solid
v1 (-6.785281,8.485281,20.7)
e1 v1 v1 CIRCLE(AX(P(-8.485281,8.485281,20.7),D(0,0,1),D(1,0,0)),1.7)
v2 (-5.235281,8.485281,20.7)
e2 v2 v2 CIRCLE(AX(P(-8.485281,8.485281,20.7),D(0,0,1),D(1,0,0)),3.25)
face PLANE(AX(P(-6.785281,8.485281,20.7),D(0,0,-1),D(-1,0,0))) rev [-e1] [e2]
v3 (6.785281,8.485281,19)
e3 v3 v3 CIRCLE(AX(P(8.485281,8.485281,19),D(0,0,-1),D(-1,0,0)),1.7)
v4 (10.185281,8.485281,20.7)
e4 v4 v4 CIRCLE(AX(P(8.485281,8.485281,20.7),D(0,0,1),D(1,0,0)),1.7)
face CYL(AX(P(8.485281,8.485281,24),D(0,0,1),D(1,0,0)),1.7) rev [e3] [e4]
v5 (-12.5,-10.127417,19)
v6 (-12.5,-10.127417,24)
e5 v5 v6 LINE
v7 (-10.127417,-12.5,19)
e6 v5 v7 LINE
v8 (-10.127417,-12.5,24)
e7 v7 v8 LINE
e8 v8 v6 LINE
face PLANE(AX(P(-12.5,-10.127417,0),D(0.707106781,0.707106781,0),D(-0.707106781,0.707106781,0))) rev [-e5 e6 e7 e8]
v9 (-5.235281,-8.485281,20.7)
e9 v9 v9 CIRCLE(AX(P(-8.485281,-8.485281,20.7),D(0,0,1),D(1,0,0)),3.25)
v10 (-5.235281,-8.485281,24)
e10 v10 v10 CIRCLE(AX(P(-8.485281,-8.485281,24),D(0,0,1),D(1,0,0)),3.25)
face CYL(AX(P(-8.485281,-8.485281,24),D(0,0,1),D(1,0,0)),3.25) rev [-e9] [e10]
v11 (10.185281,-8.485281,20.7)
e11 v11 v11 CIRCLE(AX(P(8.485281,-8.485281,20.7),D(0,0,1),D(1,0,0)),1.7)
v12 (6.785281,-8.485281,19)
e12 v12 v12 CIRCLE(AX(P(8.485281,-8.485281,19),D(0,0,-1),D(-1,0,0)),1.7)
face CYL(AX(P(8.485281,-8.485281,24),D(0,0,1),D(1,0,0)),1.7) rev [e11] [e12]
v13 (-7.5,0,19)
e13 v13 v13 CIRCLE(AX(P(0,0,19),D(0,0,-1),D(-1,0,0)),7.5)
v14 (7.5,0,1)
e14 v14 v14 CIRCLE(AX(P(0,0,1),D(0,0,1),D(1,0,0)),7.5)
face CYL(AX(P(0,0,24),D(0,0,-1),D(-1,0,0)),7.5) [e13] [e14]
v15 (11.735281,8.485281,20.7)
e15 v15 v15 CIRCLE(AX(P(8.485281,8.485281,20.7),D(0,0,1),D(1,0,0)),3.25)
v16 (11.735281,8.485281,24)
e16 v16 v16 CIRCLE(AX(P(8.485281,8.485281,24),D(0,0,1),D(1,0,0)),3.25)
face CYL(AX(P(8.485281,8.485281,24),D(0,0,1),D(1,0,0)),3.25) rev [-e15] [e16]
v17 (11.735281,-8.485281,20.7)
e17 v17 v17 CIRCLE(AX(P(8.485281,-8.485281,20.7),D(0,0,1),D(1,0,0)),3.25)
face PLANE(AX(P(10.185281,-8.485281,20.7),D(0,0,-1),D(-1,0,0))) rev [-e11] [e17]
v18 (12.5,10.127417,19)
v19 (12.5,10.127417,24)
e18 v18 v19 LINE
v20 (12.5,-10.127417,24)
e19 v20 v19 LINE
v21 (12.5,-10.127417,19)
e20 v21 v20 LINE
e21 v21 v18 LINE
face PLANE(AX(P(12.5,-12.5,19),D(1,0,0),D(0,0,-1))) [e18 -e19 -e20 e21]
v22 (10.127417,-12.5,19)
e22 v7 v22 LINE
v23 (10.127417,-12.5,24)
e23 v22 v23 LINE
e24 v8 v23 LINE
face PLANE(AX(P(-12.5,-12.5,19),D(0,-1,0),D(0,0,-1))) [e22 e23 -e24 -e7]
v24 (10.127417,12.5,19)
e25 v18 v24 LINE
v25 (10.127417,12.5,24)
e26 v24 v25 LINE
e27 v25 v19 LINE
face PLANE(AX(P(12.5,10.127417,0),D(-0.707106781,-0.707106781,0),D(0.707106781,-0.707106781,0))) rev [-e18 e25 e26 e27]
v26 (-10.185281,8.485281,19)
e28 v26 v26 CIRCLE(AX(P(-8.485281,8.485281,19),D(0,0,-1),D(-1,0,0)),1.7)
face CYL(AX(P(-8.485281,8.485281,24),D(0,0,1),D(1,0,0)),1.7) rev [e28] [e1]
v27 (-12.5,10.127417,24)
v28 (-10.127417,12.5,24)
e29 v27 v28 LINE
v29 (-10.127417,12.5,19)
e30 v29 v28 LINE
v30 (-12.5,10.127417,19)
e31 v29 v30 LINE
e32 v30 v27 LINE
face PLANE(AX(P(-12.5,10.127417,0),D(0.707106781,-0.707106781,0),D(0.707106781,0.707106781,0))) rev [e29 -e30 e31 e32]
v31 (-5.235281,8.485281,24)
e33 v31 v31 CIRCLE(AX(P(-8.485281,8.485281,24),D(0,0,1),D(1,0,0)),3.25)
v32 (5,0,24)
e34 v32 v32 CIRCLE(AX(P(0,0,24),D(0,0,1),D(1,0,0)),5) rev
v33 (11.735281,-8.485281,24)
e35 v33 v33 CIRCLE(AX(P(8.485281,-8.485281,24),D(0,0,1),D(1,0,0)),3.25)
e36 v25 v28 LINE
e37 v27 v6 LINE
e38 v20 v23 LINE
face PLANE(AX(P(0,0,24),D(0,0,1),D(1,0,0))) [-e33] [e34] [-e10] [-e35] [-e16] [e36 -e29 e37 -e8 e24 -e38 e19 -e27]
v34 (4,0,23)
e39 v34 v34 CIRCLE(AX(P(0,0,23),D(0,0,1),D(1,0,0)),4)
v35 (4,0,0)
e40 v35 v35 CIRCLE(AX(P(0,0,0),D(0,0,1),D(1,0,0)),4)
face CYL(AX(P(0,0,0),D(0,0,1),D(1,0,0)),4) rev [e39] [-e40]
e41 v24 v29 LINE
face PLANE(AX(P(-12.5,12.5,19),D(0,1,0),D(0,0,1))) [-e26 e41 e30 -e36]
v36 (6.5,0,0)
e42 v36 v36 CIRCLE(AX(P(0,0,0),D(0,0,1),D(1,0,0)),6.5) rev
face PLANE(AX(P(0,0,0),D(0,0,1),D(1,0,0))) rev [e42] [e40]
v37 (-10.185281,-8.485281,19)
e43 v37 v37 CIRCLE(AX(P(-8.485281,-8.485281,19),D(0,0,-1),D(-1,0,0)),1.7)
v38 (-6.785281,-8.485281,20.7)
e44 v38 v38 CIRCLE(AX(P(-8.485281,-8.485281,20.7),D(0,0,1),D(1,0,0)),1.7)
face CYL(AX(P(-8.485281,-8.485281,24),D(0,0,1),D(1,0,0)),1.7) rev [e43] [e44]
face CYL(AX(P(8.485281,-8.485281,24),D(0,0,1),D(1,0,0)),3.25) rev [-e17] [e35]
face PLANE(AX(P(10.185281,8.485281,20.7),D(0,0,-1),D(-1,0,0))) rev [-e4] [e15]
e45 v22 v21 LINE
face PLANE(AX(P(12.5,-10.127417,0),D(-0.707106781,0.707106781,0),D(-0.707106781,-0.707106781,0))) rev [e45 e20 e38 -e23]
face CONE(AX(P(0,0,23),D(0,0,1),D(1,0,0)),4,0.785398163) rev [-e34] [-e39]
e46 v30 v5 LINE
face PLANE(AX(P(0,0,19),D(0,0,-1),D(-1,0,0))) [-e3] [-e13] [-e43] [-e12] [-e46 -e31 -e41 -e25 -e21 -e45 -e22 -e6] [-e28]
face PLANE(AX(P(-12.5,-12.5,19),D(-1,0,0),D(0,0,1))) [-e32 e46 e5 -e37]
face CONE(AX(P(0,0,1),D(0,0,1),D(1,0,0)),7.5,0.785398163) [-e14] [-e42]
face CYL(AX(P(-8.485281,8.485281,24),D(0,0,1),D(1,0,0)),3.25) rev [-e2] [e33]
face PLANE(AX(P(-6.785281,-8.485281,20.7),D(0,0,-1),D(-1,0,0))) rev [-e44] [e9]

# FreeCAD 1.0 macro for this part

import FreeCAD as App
import Part
import Sketcher

V = App.Vector
Q = App.Units.Quantity


def edges_at(feature, points):
    """Names of the edges that pass closest to the given points."""
    edges = feature.Shape.Edges
    near = lambda p: min(range(len(edges)), key=lambda i: edges[i].distToShape(Part.Vertex(*p))[0])
    return sorted({f"Edge{near(p) + 1}" for p in points})


def add_polygon(sketch, points):
    """Adds a closed chain of lines whose ends are joined by coincident constraints."""
    first, n = sketch.GeometryCount, len(points)
    for a, b in zip(points, points[1:] + points[:1]):
        sketch.addGeometry(Part.LineSegment(App.Vector(*a, 0), App.Vector(*b, 0)), False)
    for i in range(n):
        sketch.addConstraint(Sketcher.Constraint("Coincident", first + i, 2, first + (i + 1) % n, 1))

doc = App.newDocument("Part")
body = doc.addObject("PartDesign::Body", "Body")

# Sketch on XY plane
sketch1 = doc.addObject("Sketcher::SketchObject", "Sketch")
body.addObject(sketch1)
sketch1.AttachmentSupport = (doc.XY_Plane, [""])
sketch1.MapMode = "FlatFace"
sketch1.addGeometry(Part.Circle(V(0, 0, 0), V(0, 0, 1), 8), False)
sketch1.addConstraint([
    Sketcher.Constraint("Coincident", 0, 3, -1, 1),
    Sketcher.Constraint("Diameter", 0, Q("15 mm")),
])
pad1 = doc.addObject("PartDesign::Pad", "Pad")
body.addObject(pad1)
pad1.Profile = sketch1
pad1.Length = 24

# Sketch on XY plane
sketch2 = doc.addObject("Sketcher::SketchObject", "Sketch001")
body.addObject(sketch2)
sketch2.AttachmentSupport = (doc.XY_Plane, [""])
sketch2.MapMode = "FlatFace"
sketch2.AttachmentOffset = App.Placement(V(0, 0, 24), App.Rotation())
add_polygon(sketch2, [(-12, 12), (-12, -12), (12, -12), (12, 12)])  # lines 0-3
sketch2.addConstraint([
    Sketcher.Constraint("Vertical", 0),
    Sketcher.Constraint("Horizontal", 1),
    Sketcher.Constraint("Vertical", 2),
    Sketcher.Constraint("Horizontal", 3),
    Sketcher.Constraint("Symmetric", 0, 2, 2, 2, -1, 1),
    Sketcher.Constraint("Equal", 3, 0),
    Sketcher.Constraint("DistanceX", 1, 1, 1, 2, Q("25 mm")),
])
pad2 = doc.addObject("PartDesign::Pad", "Pad001")
body.addObject(pad2)
pad2.Profile = sketch2
pad2.Length = 5
pad2.Reversed = True

# Sketch on XY plane
sketch3 = doc.addObject("Sketcher::SketchObject", "Sketch002")
body.addObject(sketch3)
sketch3.AttachmentSupport = (doc.XY_Plane, [""])
sketch3.MapMode = "FlatFace"
sketch3.AttachmentOffset = App.Placement(V(0, 0, 24), App.Rotation())
add_polygon(sketch3, [(-12.5, 12.5), (-12.5, 10.1), (-10.1, 12.5)])  # lines 0-2
add_polygon(sketch3, [(12.5, 12.5), (10.1, 12.5), (12.5, 10.1)])  # lines 3-5
add_polygon(sketch3, [(12.5, -12.5), (12.5, -10.1), (10.1, -12.5)])  # lines 6-8
add_polygon(sketch3, [(-12.5, -12.5), (-10.1, -12.5), (-12.5, -10.1)])  # lines 9-11
sketch3.addConstraint([
    Sketcher.Constraint("Vertical", 0),
    Sketcher.Constraint("Horizontal", 2),
    Sketcher.Constraint("Horizontal", 3),
    Sketcher.Constraint("Vertical", 5),
    Sketcher.Constraint("Vertical", 6),
    Sketcher.Constraint("Horizontal", 8),
    Sketcher.Constraint("Horizontal", 9),
    Sketcher.Constraint("Vertical", 11),
    Sketcher.Constraint("Symmetric", 0, 2, 6, 2, -1, 1),
    Sketcher.Constraint("Symmetric", 1, 2, 7, 2, -1, 1),
    Sketcher.Constraint("Symmetric", 3, 2, 9, 2, -1, 1),
    Sketcher.Constraint("Symmetric", 4, 2, 10, 2, -1, 1),
    Sketcher.Constraint("Symmetric", 1, 2, 3, 2, -2),
    Sketcher.Constraint("Symmetric", 0, 2, 4, 2, -2),
    Sketcher.Constraint("Perpendicular", 1, 4),
    Sketcher.Constraint("DistanceX", 0, 2, 4, 2, Q("25 mm")),
    Sketcher.Constraint("DistanceY", 7, 2, 3, 2, Q("25 mm")),
    Sketcher.Constraint("Distance", 1, Q("3.355339 mm")),
])
pocket1 = doc.addObject("PartDesign::Pocket", "Pocket")
body.addObject(pocket1)
pocket1.Profile = sketch3
pocket1.Type = "ThroughAll"

# Sketch on XY plane
sketch4 = doc.addObject("Sketcher::SketchObject", "Sketch003")
body.addObject(sketch4)
sketch4.AttachmentSupport = (doc.XY_Plane, [""])
sketch4.MapMode = "FlatFace"
sketch4.AttachmentOffset = App.Placement(V(0, 0, 24), App.Rotation())
sketch4.addGeometry([
    Part.Circle(V(-8.5, 8.5, 0), V(0, 0, 1), 1.7),
    Part.Circle(V(8.5, 8.5, 0), V(0, 0, 1), 1.7),
    Part.Circle(V(8.5, -8.5, 0), V(0, 0, 1), 1.7),
    Part.Circle(V(-8.5, -8.5, 0), V(0, 0, 1), 1.7),
], False)
sketch4.addConstraint([
    Sketcher.Constraint("Equal", 0, 1),
    Sketcher.Constraint("Equal", 1, 2),
    Sketcher.Constraint("Equal", 2, 3),
    Sketcher.Constraint("Symmetric", 0, 3, 2, 3, -1, 1),
    Sketcher.Constraint("Symmetric", 1, 3, 3, 3, -1, 1),
    Sketcher.Constraint("Symmetric", 0, 3, 1, 3, -2),
    Sketcher.Constraint("Diameter", 0, Q("3.4 mm")),
    Sketcher.Constraint("DistanceX", 0, 3, -1, 1, Q("8.485281 mm")),
    Sketcher.Constraint("DistanceY", -1, 1, 0, 3, Q("8.485281 mm")),
])
doc.recompute()
hole = doc.addObject("PartDesign::Hole", "Hole")
body.addObject(hole)
hole.Profile = sketch4
hole.ThreadType = "None"
hole.Diameter = 3.4
hole.DepthType = "Dimension"
hole.Depth = 22
hole.DrillPoint = "Angled"
hole.DrillPointAngle = 118
hole.HoleCutType = "Counterbore"
hole.HoleCutDiameter = 6.5
hole.HoleCutDepth = 3.3

# Sketch on XY plane
sketch5 = doc.addObject("Sketcher::SketchObject", "Sketch004")
body.addObject(sketch5)
sketch5.AttachmentSupport = (doc.XY_Plane, [""])
sketch5.MapMode = "FlatFace"
sketch5.AttachmentOffset = App.Placement(V(0, 0, 24), App.Rotation())
sketch5.addGeometry(Part.Circle(V(0, 0, 0), V(0, 0, 1), 4), False)
sketch5.addConstraint([
    Sketcher.Constraint("Coincident", 0, 3, -1, 1),
    Sketcher.Constraint("Diameter", 0, Q("8 mm")),
])
pocket2 = doc.addObject("PartDesign::Pocket", "Pocket001")
body.addObject(pocket2)
pocket2.Profile = sketch5
pocket2.Type = "ThroughAll"
doc.recompute()

chamfer = doc.addObject("PartDesign::Chamfer", "Chamfer")
body.addObject(chamfer)
chamfer.Base = (pocket2, edges_at(pocket2, [(-4, 0, 24), (-7.5, 0, 0)]))
chamfer.Size = 1

doc.recompute()
